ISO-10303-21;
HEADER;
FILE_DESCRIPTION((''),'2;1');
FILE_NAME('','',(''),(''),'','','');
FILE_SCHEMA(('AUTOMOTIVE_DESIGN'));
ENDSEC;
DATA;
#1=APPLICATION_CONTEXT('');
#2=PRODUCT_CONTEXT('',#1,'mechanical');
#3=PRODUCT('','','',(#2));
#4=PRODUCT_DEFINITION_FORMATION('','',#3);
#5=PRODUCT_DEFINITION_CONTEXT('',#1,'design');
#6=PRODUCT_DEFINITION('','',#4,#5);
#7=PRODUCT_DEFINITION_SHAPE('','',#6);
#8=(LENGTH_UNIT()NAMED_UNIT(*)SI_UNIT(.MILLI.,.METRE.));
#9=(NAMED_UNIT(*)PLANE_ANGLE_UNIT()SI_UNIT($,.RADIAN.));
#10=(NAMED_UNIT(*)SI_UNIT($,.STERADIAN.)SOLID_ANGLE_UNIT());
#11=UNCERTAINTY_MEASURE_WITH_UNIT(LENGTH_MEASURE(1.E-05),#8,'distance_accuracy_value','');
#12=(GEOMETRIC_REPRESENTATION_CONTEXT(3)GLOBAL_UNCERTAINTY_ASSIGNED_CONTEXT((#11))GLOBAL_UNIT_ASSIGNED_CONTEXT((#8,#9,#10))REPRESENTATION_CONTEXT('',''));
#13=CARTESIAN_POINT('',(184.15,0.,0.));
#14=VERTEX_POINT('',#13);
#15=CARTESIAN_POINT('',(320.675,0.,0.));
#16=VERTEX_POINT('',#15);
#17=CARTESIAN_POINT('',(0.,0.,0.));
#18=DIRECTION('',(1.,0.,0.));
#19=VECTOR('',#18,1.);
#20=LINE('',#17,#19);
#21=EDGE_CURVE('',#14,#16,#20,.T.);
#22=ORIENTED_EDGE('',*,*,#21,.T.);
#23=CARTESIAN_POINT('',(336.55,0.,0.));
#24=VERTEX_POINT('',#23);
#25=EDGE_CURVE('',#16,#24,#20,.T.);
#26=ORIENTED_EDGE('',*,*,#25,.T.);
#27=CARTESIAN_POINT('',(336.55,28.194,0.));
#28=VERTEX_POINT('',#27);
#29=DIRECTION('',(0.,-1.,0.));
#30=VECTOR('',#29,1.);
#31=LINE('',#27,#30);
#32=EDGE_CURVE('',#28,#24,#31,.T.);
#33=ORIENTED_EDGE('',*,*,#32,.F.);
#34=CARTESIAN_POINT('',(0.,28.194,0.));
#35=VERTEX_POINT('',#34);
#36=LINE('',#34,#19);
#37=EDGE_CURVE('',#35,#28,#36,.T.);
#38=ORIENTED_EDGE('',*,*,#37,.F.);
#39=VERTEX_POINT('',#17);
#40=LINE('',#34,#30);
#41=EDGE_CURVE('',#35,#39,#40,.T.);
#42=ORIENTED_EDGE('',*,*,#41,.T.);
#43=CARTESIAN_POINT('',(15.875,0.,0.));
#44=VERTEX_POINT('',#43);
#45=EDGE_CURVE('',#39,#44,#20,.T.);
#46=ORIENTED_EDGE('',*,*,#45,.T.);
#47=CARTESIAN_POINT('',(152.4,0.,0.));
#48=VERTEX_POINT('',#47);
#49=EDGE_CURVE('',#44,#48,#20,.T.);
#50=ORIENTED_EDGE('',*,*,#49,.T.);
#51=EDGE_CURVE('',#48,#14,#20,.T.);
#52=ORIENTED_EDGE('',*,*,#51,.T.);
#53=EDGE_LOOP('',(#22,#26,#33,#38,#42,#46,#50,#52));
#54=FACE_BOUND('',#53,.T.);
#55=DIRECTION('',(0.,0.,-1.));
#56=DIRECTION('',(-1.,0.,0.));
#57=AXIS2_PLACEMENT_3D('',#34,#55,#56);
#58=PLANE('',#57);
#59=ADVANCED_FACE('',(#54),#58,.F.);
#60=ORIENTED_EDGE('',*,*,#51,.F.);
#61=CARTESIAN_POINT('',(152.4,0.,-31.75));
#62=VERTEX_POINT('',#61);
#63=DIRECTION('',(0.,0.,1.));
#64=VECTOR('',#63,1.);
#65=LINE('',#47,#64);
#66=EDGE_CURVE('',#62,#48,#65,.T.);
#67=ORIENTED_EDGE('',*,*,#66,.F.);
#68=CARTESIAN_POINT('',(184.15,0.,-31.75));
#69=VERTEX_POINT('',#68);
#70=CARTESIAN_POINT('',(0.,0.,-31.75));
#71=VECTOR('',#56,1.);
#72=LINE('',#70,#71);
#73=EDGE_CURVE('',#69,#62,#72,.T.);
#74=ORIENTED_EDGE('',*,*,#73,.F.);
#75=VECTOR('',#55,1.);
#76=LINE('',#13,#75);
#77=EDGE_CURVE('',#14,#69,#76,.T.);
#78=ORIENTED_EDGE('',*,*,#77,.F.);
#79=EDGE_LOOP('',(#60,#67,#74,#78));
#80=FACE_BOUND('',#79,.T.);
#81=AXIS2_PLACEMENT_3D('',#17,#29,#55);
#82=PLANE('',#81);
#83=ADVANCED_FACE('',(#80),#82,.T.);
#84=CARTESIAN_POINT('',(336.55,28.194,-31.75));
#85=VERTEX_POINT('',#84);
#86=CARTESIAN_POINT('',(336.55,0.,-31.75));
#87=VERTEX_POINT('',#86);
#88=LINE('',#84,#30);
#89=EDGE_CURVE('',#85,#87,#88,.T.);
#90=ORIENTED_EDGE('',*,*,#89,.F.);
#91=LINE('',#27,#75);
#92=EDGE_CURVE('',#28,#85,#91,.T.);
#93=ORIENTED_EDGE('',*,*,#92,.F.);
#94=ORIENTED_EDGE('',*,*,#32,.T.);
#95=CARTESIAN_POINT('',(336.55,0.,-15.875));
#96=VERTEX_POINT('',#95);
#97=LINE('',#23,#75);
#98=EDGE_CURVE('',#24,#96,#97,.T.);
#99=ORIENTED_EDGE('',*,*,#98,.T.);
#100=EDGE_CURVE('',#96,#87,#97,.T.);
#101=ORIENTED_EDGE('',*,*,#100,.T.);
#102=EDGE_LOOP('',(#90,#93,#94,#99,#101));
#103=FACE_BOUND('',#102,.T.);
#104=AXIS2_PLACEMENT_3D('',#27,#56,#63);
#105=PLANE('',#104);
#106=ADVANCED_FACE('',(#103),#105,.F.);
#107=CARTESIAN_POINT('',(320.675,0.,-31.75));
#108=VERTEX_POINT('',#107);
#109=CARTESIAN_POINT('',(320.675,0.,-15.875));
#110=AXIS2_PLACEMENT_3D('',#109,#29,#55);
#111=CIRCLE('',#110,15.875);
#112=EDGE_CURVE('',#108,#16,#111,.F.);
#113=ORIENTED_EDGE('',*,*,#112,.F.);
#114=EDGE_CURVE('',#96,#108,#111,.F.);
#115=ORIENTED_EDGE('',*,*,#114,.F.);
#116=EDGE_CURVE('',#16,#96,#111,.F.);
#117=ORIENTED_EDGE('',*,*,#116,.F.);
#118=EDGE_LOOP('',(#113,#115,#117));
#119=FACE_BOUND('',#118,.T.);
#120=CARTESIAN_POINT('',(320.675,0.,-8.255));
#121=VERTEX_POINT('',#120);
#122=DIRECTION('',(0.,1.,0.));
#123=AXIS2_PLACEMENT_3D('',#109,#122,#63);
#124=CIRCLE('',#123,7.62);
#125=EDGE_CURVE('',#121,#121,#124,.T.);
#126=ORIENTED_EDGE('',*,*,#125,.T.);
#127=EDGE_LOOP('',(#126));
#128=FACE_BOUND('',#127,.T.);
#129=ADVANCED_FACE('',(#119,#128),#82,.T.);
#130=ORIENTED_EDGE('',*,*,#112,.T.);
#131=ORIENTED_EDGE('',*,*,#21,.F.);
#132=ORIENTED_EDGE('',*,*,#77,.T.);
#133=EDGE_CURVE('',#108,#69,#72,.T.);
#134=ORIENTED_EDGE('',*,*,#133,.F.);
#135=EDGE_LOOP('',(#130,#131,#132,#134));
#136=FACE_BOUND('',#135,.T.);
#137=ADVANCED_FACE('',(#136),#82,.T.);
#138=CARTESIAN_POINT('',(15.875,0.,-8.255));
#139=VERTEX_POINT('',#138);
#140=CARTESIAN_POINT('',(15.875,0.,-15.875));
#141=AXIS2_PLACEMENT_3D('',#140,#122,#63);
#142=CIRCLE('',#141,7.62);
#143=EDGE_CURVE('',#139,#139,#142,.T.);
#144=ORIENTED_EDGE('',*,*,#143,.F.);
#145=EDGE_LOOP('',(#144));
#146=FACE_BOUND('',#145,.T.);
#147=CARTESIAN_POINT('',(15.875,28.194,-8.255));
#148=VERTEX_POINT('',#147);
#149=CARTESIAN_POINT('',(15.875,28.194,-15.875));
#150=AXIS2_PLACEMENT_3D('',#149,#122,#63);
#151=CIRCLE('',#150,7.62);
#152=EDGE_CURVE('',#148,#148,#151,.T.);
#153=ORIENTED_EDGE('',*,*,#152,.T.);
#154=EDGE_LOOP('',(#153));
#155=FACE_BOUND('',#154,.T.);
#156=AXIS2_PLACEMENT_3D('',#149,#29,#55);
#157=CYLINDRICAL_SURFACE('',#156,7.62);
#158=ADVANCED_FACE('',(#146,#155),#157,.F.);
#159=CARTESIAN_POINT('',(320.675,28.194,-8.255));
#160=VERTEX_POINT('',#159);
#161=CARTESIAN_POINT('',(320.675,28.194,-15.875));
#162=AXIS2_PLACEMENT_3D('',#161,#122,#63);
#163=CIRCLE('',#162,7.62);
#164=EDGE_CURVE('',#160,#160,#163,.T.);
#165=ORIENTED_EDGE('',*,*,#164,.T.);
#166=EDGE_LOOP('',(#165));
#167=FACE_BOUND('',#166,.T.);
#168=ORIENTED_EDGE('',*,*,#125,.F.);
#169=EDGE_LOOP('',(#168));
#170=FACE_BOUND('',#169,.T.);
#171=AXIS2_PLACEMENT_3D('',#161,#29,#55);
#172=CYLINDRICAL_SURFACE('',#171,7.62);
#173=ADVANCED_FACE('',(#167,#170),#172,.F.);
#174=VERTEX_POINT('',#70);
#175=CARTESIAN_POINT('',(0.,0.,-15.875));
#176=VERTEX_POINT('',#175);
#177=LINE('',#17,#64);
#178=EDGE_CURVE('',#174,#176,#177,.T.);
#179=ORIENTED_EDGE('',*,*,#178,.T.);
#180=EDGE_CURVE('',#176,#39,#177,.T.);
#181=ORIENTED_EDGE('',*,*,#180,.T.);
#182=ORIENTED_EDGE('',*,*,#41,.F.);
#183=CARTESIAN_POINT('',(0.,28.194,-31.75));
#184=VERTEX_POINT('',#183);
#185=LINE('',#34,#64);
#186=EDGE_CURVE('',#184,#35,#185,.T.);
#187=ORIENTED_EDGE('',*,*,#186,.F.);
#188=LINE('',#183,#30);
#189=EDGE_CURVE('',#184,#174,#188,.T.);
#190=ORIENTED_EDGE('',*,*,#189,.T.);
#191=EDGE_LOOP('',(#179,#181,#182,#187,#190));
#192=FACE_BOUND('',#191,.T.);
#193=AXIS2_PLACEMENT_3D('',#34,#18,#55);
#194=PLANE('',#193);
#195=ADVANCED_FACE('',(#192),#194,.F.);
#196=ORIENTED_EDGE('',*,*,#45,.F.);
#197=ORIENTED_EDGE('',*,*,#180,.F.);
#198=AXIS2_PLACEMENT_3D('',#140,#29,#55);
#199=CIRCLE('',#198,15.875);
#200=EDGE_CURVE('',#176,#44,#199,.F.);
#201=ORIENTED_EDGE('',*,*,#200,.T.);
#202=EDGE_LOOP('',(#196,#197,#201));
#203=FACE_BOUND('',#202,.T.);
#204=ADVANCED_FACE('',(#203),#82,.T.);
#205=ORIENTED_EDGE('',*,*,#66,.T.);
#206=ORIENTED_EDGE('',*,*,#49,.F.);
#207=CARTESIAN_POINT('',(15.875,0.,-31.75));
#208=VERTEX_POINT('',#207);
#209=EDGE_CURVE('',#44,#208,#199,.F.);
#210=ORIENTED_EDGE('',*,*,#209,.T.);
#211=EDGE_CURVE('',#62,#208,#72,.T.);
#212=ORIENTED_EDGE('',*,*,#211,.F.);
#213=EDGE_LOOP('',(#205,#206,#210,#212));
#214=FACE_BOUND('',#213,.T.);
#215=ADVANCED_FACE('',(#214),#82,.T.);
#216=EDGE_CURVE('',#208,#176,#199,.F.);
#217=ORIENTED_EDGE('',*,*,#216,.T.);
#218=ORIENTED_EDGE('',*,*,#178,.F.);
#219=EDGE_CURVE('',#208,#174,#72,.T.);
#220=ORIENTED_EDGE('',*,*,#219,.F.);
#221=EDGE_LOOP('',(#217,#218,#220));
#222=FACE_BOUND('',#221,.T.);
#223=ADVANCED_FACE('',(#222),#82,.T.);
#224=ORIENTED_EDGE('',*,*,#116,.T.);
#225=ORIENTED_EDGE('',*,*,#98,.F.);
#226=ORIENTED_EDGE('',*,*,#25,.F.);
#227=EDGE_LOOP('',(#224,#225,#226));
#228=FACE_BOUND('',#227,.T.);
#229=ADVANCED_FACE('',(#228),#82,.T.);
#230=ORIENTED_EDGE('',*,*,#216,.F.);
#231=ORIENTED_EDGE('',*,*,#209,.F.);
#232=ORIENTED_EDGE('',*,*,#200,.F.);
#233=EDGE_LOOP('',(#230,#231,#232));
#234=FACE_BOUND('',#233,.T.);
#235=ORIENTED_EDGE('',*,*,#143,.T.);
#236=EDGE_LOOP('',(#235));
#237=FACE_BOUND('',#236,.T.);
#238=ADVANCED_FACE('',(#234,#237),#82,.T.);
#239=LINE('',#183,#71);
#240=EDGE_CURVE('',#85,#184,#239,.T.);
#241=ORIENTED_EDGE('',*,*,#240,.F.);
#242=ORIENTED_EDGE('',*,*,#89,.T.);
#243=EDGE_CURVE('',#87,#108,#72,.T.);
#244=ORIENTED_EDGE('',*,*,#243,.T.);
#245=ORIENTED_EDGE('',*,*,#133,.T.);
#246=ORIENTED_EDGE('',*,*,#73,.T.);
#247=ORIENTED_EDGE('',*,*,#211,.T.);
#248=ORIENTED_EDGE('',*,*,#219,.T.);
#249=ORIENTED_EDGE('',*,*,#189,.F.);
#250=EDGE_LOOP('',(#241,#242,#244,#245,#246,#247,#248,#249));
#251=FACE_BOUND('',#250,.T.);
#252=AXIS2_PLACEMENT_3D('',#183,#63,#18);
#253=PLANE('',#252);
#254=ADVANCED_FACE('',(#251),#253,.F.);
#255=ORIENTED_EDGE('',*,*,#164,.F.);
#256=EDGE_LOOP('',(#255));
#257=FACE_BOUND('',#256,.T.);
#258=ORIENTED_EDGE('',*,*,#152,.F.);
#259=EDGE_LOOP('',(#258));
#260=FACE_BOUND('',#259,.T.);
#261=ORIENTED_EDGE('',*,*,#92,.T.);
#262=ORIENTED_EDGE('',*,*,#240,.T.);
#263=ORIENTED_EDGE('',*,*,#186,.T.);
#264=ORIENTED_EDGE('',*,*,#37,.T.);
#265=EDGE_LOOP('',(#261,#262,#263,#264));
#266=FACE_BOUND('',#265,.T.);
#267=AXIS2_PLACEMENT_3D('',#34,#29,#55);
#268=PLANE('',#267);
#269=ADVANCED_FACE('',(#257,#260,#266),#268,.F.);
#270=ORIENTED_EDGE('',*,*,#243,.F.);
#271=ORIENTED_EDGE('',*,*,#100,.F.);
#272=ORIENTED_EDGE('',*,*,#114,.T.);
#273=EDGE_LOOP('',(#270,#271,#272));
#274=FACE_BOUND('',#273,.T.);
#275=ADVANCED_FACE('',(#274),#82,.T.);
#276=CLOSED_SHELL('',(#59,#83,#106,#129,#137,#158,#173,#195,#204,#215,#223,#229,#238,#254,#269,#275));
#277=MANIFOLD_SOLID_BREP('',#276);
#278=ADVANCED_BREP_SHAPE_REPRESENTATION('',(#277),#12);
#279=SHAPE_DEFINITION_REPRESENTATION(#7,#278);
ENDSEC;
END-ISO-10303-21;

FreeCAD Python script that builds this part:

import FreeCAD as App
import Part
import Sketcher

V = App.Vector
Q = App.Units.Quantity


def add_polygon(sketch, points):
    """Adds a closed chain of lines whose ends are joined by coincident constraints."""
    first, n = sketch.GeometryCount, len(points)
    for a, b in zip(points, points[1:] + points[:1]):
        sketch.addGeometry(Part.LineSegment(App.Vector(*a, 0), App.Vector(*b, 0)), False)
    for i in range(n):
        sketch.addConstraint(Sketcher.Constraint("Coincident", first + i, 2, first + (i + 1) % n, 1))

doc = App.newDocument("Part")
body = doc.addObject("PartDesign::Body", "Body")

# Sketch on XZ plane
sketch1 = body.newObject("Sketcher::SketchObject", "Sketch")
sketch1.AttachmentSupport = (doc.getObject("XZ_Plane"), [""])
sketch1.MapMode = "FlatFace"
add_polygon(sketch1, [(0, -31.75), (0, 0), (336.55, 0), (336.55, -31.75)])  # lines 0-3
sketch1.addGeometry(Part.Circle(V(15.875, -15.875, 0), V(0, 0, 1), 7.62), False)  # 4
sketch1.addGeometry(Part.Circle(V(320.675, -15.875, 0), V(0, 0, 1), 7.62), False)  # 5
sketch1.addConstraint([
    Sketcher.Constraint("Vertical", 0),
    Sketcher.Constraint("Horizontal", 1),
    Sketcher.Constraint("Vertical", 2),
    Sketcher.Constraint("Horizontal", 3),
    Sketcher.Constraint("Coincident", 0, 2, -1, 1),
    Sketcher.Constraint("Equal", 4, 5),
    Sketcher.Constraint("Horizontal", 4, 3, 5, 3),
    Sketcher.Constraint("Diameter", 4, Q("0.6 in")),
    Sketcher.Constraint("DistanceX", 4, 3, 5, 3, Q("12 in")),
    Sketcher.Constraint("DistanceX", 1, 1, 1, 2, Q("13.25 in")),
    Sketcher.Constraint("DistanceY", 0, 1, 0, 2, Q("1.25 in")),
    Sketcher.Constraint("DistanceX", -1, 1, 4, 3, Q("0.625 in")),
    Sketcher.Constraint("DistanceY", 4, 3, -1, 1, Q("0.625 in")),
])
pad1 = body.newObject("PartDesign::Pad", "Pad")
pad1.Profile = sketch1
pad1.Length = Q("1.11 in")
pad1.Reversed = True

doc.recompute()
